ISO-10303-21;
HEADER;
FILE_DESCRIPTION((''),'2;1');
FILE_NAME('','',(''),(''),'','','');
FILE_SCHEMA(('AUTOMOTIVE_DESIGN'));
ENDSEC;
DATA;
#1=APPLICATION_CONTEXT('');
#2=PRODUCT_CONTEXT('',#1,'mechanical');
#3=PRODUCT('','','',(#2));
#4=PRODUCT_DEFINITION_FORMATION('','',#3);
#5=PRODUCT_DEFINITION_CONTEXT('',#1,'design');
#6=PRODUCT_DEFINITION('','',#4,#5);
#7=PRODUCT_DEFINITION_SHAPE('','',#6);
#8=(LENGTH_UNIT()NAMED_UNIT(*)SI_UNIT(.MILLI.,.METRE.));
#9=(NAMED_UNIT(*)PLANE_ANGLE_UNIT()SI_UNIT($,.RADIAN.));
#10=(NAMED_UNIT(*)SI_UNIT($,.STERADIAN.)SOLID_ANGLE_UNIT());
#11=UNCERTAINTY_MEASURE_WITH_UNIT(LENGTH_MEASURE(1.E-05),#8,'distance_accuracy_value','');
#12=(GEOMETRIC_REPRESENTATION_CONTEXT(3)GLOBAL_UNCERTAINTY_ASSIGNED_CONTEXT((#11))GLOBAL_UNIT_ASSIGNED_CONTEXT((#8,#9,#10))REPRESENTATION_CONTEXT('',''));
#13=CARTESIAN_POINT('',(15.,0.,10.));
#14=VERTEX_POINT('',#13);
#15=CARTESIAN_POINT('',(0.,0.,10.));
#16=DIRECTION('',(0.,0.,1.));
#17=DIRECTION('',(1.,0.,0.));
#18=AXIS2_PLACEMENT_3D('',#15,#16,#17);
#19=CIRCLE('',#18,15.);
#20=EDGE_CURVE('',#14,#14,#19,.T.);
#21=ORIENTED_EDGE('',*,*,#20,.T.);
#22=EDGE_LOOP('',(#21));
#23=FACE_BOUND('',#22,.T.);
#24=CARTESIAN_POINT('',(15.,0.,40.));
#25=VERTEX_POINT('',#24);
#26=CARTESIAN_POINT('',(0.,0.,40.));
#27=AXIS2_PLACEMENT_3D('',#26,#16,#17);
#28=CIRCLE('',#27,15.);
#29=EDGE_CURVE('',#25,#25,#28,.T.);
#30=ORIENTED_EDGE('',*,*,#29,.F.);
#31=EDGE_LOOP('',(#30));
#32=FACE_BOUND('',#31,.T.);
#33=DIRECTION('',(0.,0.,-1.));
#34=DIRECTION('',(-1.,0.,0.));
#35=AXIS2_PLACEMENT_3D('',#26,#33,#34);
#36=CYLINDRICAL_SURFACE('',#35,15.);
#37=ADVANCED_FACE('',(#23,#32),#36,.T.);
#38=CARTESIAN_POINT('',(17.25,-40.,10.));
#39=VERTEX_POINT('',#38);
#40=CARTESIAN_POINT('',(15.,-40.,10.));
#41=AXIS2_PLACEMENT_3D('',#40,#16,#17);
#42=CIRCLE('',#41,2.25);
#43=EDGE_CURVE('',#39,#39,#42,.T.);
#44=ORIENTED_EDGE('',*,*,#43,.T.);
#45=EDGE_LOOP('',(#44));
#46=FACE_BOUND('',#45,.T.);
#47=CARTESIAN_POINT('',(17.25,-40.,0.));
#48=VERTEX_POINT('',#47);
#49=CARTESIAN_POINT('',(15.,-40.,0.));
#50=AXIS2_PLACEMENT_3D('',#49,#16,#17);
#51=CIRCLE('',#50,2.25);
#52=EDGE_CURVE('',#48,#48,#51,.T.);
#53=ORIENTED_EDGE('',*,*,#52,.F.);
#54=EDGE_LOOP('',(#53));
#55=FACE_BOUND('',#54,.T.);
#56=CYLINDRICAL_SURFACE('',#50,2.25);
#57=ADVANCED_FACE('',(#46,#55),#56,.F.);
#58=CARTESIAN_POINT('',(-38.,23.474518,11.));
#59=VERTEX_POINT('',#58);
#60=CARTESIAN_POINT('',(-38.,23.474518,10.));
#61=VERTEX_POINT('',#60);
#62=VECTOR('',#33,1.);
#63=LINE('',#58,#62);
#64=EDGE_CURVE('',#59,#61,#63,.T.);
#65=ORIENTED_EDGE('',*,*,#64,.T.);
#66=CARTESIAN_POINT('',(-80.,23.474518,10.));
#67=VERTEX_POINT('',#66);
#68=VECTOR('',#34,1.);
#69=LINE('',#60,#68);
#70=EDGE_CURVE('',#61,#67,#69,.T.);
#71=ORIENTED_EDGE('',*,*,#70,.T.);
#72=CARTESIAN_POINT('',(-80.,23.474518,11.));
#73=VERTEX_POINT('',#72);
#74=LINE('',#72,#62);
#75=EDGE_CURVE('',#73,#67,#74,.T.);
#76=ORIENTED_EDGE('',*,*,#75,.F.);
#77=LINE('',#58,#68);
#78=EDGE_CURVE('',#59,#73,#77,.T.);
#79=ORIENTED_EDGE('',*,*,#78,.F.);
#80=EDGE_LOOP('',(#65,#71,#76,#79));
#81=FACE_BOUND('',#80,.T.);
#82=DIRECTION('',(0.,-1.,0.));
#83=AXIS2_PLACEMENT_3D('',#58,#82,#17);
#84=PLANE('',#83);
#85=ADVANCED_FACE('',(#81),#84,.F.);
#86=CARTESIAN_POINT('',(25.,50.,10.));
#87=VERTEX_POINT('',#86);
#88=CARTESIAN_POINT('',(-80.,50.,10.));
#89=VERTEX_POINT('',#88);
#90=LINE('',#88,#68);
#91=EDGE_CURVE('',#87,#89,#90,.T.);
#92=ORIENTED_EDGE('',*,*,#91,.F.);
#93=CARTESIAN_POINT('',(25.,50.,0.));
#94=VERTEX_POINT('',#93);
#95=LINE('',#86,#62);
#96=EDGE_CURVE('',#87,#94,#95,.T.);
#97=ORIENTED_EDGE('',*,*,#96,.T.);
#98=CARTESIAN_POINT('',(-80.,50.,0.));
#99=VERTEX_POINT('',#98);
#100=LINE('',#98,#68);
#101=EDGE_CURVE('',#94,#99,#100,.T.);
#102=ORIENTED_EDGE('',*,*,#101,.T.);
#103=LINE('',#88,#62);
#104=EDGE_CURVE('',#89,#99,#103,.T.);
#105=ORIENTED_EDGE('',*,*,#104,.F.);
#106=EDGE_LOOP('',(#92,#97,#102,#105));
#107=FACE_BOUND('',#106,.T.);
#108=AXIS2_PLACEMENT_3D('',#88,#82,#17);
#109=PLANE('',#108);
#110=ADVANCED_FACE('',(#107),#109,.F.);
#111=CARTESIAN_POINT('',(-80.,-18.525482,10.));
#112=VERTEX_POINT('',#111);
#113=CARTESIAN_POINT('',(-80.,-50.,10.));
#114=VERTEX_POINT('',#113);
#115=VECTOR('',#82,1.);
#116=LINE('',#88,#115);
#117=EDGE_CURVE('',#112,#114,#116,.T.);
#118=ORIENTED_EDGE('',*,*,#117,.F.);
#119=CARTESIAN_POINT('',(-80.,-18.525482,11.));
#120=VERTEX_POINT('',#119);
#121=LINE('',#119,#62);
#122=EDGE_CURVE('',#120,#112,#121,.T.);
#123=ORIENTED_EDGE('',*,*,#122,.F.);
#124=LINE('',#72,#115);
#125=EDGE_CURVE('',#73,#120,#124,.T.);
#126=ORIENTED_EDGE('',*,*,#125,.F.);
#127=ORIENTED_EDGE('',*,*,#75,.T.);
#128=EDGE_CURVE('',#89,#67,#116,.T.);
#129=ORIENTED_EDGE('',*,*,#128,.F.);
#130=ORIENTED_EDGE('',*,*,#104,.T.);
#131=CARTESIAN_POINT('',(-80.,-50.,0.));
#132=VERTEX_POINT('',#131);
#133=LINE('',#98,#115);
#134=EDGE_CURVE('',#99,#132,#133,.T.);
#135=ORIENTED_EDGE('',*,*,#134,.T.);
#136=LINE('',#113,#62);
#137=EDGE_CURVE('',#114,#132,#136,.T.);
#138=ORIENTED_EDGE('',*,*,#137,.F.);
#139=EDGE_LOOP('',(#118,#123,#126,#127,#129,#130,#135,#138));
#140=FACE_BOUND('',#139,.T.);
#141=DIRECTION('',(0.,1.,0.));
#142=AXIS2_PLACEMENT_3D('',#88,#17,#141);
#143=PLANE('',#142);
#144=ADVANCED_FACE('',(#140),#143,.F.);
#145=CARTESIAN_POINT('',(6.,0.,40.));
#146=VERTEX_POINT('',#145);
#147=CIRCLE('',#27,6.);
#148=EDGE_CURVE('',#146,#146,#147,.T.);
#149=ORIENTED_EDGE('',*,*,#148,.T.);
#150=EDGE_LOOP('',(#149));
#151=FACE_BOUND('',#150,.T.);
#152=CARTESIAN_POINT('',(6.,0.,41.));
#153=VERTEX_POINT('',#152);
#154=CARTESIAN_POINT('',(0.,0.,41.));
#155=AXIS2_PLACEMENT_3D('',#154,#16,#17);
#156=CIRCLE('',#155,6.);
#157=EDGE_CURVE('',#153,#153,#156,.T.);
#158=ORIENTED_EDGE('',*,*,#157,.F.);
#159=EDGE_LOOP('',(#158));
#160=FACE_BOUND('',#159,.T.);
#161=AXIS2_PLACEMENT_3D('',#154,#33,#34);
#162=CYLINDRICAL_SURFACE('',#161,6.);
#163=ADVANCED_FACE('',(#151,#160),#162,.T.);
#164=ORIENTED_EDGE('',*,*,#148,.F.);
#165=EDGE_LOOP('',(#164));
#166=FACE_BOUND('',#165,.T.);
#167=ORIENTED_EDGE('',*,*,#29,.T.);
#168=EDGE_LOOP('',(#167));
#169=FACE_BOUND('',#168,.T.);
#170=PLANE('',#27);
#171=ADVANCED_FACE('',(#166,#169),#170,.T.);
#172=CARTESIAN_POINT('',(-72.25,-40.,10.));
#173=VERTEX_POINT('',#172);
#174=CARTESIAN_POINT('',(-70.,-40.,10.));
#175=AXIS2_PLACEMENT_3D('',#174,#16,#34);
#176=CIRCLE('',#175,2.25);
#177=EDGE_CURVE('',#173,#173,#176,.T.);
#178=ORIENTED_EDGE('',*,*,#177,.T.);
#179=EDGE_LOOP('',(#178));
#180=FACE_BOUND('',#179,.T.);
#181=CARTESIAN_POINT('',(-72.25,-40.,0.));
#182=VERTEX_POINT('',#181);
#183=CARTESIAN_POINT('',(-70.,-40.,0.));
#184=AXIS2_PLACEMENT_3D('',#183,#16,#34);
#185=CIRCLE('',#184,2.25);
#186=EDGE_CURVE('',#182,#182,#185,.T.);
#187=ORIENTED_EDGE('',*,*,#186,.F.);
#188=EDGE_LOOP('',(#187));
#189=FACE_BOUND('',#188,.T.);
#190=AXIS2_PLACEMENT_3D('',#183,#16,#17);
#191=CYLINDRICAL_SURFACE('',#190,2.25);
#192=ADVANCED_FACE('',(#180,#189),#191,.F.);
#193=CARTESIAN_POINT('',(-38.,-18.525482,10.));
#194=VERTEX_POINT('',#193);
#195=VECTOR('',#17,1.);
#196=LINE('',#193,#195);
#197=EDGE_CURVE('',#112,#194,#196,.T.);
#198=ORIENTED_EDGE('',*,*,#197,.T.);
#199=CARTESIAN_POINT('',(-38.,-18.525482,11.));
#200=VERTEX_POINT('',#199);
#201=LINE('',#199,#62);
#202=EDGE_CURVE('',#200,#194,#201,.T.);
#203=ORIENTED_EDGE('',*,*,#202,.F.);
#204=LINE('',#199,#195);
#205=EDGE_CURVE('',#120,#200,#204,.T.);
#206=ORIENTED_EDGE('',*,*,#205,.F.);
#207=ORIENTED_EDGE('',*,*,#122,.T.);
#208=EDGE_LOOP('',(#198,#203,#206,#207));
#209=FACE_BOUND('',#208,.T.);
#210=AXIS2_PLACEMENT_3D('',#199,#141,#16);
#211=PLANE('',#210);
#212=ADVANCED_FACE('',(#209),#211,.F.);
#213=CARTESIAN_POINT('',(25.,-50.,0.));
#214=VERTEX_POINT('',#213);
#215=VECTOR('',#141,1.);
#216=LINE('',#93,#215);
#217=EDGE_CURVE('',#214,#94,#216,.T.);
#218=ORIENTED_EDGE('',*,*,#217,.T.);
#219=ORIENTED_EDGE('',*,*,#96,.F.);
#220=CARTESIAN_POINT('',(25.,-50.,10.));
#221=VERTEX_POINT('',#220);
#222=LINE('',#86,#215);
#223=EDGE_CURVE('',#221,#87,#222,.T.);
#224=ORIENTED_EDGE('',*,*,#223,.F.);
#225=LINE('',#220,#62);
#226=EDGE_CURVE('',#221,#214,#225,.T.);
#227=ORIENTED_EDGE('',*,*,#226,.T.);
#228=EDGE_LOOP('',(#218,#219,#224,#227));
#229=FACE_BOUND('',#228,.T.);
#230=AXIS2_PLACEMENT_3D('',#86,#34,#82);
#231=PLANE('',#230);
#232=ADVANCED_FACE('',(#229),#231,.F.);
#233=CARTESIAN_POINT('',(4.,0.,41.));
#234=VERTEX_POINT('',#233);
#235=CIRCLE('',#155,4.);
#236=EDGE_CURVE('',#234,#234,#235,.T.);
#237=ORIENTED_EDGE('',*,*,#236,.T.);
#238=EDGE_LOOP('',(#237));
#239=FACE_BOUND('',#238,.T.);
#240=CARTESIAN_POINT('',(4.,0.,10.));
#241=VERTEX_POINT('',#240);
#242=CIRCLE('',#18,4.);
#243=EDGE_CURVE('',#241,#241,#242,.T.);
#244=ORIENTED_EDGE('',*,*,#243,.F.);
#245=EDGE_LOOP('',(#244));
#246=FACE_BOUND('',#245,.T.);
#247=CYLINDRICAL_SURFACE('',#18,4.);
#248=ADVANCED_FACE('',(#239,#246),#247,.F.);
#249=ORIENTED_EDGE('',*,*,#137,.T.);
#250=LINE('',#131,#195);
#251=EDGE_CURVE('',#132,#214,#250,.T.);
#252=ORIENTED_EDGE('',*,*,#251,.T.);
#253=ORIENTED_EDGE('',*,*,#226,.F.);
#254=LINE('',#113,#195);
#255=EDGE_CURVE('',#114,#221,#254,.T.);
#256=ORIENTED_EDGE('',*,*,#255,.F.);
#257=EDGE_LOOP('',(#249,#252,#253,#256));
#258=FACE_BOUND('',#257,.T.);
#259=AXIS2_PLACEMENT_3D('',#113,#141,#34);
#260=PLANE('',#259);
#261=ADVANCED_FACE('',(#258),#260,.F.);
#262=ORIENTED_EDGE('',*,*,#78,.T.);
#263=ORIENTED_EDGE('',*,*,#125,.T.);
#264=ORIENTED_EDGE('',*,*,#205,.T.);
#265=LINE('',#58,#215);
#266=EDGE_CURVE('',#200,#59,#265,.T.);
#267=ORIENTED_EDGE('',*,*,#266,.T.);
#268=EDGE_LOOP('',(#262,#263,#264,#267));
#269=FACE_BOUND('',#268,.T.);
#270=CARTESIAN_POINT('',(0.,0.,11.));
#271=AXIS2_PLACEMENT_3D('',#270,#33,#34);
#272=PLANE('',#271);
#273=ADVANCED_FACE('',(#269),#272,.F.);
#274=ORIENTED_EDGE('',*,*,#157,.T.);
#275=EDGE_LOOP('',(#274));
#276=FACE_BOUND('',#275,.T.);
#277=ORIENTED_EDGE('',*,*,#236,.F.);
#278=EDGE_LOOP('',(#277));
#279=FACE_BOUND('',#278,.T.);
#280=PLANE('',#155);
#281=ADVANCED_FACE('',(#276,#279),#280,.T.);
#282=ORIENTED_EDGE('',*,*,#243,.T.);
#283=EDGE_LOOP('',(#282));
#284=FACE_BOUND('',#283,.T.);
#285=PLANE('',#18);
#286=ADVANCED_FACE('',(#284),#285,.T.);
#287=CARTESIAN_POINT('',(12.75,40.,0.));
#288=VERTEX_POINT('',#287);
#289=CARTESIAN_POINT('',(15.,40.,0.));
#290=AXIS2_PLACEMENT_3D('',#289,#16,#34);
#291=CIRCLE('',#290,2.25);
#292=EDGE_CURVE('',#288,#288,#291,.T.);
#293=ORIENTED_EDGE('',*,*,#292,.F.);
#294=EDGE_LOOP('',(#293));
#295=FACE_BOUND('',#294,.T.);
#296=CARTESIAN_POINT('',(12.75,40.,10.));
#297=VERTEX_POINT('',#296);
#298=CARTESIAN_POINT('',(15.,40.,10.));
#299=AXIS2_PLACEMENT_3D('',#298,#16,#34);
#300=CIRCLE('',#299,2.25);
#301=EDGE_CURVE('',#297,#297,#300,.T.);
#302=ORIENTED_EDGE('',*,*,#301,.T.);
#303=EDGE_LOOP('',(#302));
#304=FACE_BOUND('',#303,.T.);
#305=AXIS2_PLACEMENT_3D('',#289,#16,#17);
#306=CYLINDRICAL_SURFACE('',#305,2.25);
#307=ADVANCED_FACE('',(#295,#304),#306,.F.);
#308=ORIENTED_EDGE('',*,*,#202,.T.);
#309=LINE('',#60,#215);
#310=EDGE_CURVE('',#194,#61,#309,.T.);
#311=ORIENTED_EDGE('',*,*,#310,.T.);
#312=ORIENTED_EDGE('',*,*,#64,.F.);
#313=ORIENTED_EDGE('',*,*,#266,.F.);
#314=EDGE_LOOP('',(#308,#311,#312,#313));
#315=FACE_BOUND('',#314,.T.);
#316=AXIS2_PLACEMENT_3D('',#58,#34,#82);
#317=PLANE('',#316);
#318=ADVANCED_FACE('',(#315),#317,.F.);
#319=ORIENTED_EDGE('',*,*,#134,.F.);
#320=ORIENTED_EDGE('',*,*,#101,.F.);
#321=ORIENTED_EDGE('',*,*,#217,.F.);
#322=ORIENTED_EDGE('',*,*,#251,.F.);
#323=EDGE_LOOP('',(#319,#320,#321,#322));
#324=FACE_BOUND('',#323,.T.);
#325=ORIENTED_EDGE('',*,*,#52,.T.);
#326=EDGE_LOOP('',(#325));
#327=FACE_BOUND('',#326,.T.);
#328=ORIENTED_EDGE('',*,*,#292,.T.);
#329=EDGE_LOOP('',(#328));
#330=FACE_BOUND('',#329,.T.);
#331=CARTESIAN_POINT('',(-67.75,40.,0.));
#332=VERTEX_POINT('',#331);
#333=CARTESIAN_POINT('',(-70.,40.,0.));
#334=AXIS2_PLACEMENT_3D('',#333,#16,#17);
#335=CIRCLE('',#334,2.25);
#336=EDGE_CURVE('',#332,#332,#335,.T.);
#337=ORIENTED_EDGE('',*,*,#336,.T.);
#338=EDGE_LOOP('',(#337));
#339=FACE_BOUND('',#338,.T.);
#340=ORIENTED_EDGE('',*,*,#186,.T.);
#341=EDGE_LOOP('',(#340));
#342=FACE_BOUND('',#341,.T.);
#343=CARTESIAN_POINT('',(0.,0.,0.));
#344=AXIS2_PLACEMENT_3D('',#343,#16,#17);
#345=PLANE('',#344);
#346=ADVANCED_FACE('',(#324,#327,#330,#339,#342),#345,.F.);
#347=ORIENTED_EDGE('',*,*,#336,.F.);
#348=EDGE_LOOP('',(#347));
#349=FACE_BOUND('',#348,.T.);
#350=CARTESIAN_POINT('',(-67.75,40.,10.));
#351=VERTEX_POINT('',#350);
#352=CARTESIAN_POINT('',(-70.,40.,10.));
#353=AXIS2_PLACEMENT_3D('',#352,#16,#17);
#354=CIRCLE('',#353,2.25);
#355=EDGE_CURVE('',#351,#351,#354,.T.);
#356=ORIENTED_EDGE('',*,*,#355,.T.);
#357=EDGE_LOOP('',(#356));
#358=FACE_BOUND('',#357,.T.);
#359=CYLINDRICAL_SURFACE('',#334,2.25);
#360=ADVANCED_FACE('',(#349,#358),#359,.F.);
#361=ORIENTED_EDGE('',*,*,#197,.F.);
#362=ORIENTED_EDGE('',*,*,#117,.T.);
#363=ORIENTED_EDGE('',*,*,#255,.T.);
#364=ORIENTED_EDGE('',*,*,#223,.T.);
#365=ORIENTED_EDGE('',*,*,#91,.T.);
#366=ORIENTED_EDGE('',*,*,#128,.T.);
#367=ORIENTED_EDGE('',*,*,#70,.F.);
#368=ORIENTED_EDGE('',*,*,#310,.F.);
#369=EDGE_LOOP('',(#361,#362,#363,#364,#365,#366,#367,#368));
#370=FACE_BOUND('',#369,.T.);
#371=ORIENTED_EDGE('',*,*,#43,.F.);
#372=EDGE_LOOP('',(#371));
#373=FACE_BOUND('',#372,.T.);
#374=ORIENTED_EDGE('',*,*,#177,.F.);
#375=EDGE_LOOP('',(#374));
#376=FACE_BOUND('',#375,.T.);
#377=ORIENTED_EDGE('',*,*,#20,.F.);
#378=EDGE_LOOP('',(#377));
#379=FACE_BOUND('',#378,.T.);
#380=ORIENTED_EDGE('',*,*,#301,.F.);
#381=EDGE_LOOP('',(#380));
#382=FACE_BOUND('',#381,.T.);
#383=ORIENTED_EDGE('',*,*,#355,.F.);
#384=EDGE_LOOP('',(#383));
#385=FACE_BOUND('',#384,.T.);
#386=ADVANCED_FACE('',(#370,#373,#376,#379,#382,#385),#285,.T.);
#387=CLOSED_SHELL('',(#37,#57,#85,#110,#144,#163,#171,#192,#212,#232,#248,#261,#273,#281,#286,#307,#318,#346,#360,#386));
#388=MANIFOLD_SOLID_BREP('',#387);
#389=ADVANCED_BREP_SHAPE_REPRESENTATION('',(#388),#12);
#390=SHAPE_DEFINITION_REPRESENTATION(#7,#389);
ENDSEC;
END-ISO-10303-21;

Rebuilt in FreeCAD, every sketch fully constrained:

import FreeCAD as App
import Part
import Sketcher
from FreeCAD import Vector

doc = App.newDocument("Part")
body = doc.addObject("PartDesign::Body", "Body")

sketch1 = body.newObject("Sketcher::SketchObject", "Sketch")
sketch1.AttachmentSupport = (doc.getObject("XY_Plane"), [""])
sketch1.MapMode = "FlatFace"
sketch1.addGeometry(Part.LineSegment(Vector(-80, 50, 0), Vector(-80, -50, 0)), False)
sketch1.addGeometry(Part.LineSegment(Vector(-80, -50, 0), Vector(25, -50, 0)), False)
sketch1.addGeometry(Part.LineSegment(Vector(25, -50, 0), Vector(25, 50, 0)), False)
sketch1.addGeometry(Part.LineSegment(Vector(25, 50, 0), Vector(-80, 50, 0)), False)
sketch1.addConstraint(Sketcher.Constraint("Coincident", 0, 2, 1, 1))
sketch1.addConstraint(Sketcher.Constraint("Coincident", 1, 2, 2, 1))
sketch1.addConstraint(Sketcher.Constraint("Coincident", 2, 2, 3, 1))
sketch1.addConstraint(Sketcher.Constraint("Coincident", 3, 2, 0, 1))
sketch1.addConstraint(Sketcher.Constraint("Vertical", 0))
sketch1.addConstraint(Sketcher.Constraint("Horizontal", 1))
sketch1.addConstraint(Sketcher.Constraint("Vertical", 2))
sketch1.addConstraint(Sketcher.Constraint("Horizontal", 3))
sketch1.addConstraint(Sketcher.Constraint("DistanceX", 1, 1, 1, 2, 105.0))
sketch1.addConstraint(Sketcher.Constraint("DistanceY", 0, 2, 0, 1, 100.0))
sketch1.addConstraint(Sketcher.Constraint("DistanceX", 0, 2, -1, 1, 80.0))
sketch1.addConstraint(Sketcher.Constraint("DistanceY", 0, 2, -1, 1, 50.0))
pad1 = body.newObject("PartDesign::Pad", "Pad")
pad1.Profile = sketch1
pad1.Length = 10

sketch2 = body.newObject("Sketcher::SketchObject", "Sketch001")
sketch2.AttachmentSupport = (doc.getObject("XY_Plane"), [""])
sketch2.MapMode = "FlatFace"
sketch2.AttachmentOffset = App.Placement(Vector(0, 0, 10), App.Rotation())
sketch2.addGeometry(Part.Circle(Vector(0, 0, 0), Vector(0, 0, 1), 15), False)
sketch2.addConstraint(Sketcher.Constraint("Coincident", 0, 3, -1, 1))
sketch2.addConstraint(Sketcher.Constraint("Diameter", 0, 30.0))
pad2 = body.newObject("PartDesign::Pad", "Pad001")
pad2.Profile = sketch2
pad2.Length = 30

sketch3 = body.newObject("Sketcher::SketchObject", "Sketch002")
sketch3.AttachmentSupport = (doc.getObject("XY_Plane"), [""])
sketch3.MapMode = "FlatFace"
sketch3.AttachmentOffset = App.Placement(Vector(0, 0, 40), App.Rotation())
sketch3.addGeometry(Part.Circle(Vector(0, 0, 0), Vector(0, 0, 1), 4), False)
sketch3.addConstraint(Sketcher.Constraint("Coincident", 0, 3, -1, 1))
sketch3.addConstraint(Sketcher.Constraint("Diameter", 0, 8.0))
pocket1 = body.newObject("PartDesign::Pocket", "Pocket")
pocket1.Profile = sketch3
pocket1.Length = 30

sketch4 = body.newObject("Sketcher::SketchObject", "Sketch003")
sketch4.AttachmentSupport = (doc.getObject("XY_Plane"), [""])
sketch4.MapMode = "FlatFace"
sketch4.AttachmentOffset = App.Placement(Vector(0, 0, 10), App.Rotation())
sketch4.addGeometry(Part.LineSegment(Vector(-80, 23.474518, 0), Vector(-80, -18.525482, 0)), False)
sketch4.addGeometry(Part.LineSegment(Vector(-80, -18.525482, 0), Vector(-38, -18.525482, 0)), False)
sketch4.addGeometry(Part.LineSegment(Vector(-38, -18.525482, 0), Vector(-38, 23.474518, 0)), False)
sketch4.addGeometry(Part.LineSegment(Vector(-38, 23.474518, 0), Vector(-80, 23.474518, 0)), False)
sketch4.addConstraint(Sketcher.Constraint("Coincident", 0, 2, 1, 1))
sketch4.addConstraint(Sketcher.Constraint("Coincident", 1, 2, 2, 1))
sketch4.addConstraint(Sketcher.Constraint("Coincident", 2, 2, 3, 1))
sketch4.addConstraint(Sketcher.Constraint("Coincident", 3, 2, 0, 1))
sketch4.addConstraint(Sketcher.Constraint("Vertical", 0))
sketch4.addConstraint(Sketcher.Constraint("Horizontal", 1))
sketch4.addConstraint(Sketcher.Constraint("Vertical", 2))
sketch4.addConstraint(Sketcher.Constraint("Horizontal", 3))
sketch4.addConstraint(Sketcher.Constraint("Equal", 3, 0))
sketch4.addConstraint(Sketcher.Constraint("DistanceX", 1, 1, 1, 2, 42.0))
sketch4.addConstraint(Sketcher.Constraint("DistanceX", 0, 2, -1, 1, 80.0))
sketch4.addConstraint(Sketcher.Constraint("DistanceY", 0, 2, -1, 1, 18.525482))
pad3 = body.newObject("PartDesign::Pad", "Pad002")
pad3.Profile = sketch4
pad3.Length = 1

sketch5 = body.newObject("Sketcher::SketchObject", "Sketch004")
sketch5.AttachmentSupport = (doc.getObject("XY_Plane"), [""])
sketch5.MapMode = "FlatFace"
sketch5.AttachmentOffset = App.Placement(Vector(0, 0, 10), App.Rotation())
sketch5.addGeometry(Part.Circle(Vector(-70, 40, 0), Vector(0, 0, 1), 2.25), False)
sketch5.addGeometry(Part.Circle(Vector(15, -40, 0), Vector(0, 0, 1), 2.25), False)
sketch5.addGeometry(Part.Circle(Vector(-70, -40, 0), Vector(0, 0, 1), 2.25), False)
sketch5.addGeometry(Part.Circle(Vector(15, 40, 0), Vector(0, 0, 1), 2.25), False)
sketch5.addConstraint(Sketcher.Constraint("Equal", 0, 1))
sketch5.addConstraint(Sketcher.Constraint("Equal", 1, 2))
sketch5.addConstraint(Sketcher.Constraint("Equal", 2, 3))
sketch5.addConstraint(Sketcher.Constraint("Symmetric", 0, 3, 2, 3, -1))
sketch5.addConstraint(Sketcher.Constraint("Symmetric", 1, 3, 3, 3, -1))
sketch5.addConstraint(Sketcher.Constraint("Horizontal", 1, 3, 2, 3))
sketch5.addConstraint(Sketcher.Constraint("Diameter", 0, 4.5))
sketch5.addConstraint(Sketcher.Constraint("DistanceX", 0, 3, -1, 1, 70.0))
sketch5.addConstraint(Sketcher.Constraint("DistanceY", -1, 1, 0, 3, 40.0))
sketch5.addConstraint(Sketcher.Constraint("DistanceX", -1, 1, 1, 3, 15.0))
pocket2 = body.newObject("PartDesign::Pocket", "Pocket001")
pocket2.Profile = sketch5
pocket2.Type = "ThroughAll"

sketch6 = body.newObject("Sketcher::SketchObject", "Sketch005")
sketch6.AttachmentSupport = (doc.getObject("XY_Plane"), [""])
sketch6.MapMode = "FlatFace"
sketch6.AttachmentOffset = App.Placement(Vector(0, 0, 41), App.Rotation())
sketch6.addGeometry(Part.Circle(Vector(0, 0, 0), Vector(0, 0, 1), 6), False)
sketch6.addGeometry(Part.Circle(Vector(0, 0, 0), Vector(0, 0, 1), 4), False)
sketch6.addConstraint(Sketcher.Constraint("Coincident", 0, 3, -1, 1))
sketch6.addConstraint(Sketcher.Constraint("Coincident", 1, 3, -1, 1))
sketch6.addConstraint(Sketcher.Constraint("Diameter", 0, 12.0))
sketch6.addConstraint(Sketcher.Constraint("Diameter", 1, 8.0))
pad4 = body.newObject("PartDesign::Pad", "Pad003")
pad4.Profile = sketch6
pad4.Length = 1
pad4.Reversed = True

doc.recompute()
